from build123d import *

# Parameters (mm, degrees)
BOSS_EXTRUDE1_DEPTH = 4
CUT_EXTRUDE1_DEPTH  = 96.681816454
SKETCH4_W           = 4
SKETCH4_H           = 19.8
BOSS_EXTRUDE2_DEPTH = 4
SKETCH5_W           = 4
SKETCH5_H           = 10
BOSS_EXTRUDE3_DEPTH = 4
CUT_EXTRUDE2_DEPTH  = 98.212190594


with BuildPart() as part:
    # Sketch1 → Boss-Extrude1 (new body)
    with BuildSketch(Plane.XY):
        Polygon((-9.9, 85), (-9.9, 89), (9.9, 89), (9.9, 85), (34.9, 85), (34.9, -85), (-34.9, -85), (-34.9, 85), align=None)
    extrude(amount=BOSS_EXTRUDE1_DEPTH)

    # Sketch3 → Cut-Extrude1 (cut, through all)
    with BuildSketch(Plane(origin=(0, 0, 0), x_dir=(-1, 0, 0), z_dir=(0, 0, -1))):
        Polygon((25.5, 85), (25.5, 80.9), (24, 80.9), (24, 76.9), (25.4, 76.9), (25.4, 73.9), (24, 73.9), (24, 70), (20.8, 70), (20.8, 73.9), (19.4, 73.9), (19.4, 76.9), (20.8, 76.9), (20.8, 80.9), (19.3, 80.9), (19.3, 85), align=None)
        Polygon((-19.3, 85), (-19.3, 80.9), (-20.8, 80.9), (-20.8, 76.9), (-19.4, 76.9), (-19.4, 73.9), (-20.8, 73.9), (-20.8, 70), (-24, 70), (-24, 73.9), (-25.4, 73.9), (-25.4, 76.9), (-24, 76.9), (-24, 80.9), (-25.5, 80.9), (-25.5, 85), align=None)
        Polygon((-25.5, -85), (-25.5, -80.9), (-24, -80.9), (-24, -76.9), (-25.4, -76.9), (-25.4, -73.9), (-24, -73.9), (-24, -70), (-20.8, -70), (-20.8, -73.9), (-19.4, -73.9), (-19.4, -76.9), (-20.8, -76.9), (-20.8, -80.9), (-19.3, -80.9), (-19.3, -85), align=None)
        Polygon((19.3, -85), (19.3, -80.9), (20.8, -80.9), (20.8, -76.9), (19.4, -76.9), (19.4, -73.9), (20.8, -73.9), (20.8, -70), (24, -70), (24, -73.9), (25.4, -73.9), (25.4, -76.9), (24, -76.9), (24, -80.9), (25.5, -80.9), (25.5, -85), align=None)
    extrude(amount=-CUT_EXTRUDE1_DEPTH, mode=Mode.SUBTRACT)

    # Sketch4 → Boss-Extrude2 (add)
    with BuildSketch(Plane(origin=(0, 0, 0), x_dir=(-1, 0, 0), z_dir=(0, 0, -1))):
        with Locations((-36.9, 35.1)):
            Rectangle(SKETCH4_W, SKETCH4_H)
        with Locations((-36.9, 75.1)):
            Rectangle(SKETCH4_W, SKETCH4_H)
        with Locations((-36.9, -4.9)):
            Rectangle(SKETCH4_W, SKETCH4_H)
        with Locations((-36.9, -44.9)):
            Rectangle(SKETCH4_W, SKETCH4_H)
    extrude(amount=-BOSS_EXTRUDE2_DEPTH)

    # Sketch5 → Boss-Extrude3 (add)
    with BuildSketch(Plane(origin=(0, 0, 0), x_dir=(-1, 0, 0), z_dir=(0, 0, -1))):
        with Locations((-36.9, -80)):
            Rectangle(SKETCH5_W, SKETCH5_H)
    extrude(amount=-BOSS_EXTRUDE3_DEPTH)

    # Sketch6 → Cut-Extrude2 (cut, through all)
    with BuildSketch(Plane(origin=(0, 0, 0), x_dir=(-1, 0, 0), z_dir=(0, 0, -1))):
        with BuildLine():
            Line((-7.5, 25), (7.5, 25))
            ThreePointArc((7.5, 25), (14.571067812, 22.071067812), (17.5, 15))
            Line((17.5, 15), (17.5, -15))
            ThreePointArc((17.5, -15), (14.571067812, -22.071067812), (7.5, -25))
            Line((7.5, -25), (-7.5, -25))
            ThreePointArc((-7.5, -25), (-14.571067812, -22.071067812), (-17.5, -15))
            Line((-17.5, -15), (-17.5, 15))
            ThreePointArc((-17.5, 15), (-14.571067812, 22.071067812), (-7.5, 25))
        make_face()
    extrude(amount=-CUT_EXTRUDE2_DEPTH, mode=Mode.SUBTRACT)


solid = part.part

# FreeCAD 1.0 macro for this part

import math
import FreeCAD as App
import Part
import Sketcher
from FreeCAD import Vector


def add_polygon(sketch, points):
    """Adds a closed chain of lines whose ends are joined by coincident constraints."""
    first, n = sketch.GeometryCount, len(points)
    for a, b in zip(points, points[1:] + points[:1]):
        sketch.addGeometry(Part.LineSegment(App.Vector(*a, 0), App.Vector(*b, 0)), False)
    for i in range(n):
        sketch.addConstraint(Sketcher.Constraint("Coincident", first + i, 2, first + (i + 1) % n, 1))

doc = App.newDocument("Part")
body = doc.addObject("PartDesign::Body", "Body")

sketch1 = body.newObject("Sketcher::SketchObject", "Sketch")
sketch1.AttachmentSupport = (doc.getObject("XY_Plane"), [""])
sketch1.MapMode = "FlatFace"
add_polygon(sketch1, [(-9.9, 89), (-9.9, 85), (-34.9, 85), (-34.9, -85), (34.9, -85), (34.9, 85), (9.9, 85), (9.9, 89)])
sketch1.addConstraint(Sketcher.Constraint("Vertical", 0))
sketch1.addConstraint(Sketcher.Constraint("Horizontal", 1))
sketch1.addConstraint(Sketcher.Constraint("Vertical", 2))
sketch1.addConstraint(Sketcher.Constraint("Horizontal", 3))
sketch1.addConstraint(Sketcher.Constraint("Vertical", 4))
sketch1.addConstraint(Sketcher.Constraint("Horizontal", 5))
sketch1.addConstraint(Sketcher.Constraint("Vertical", 6))
sketch1.addConstraint(Sketcher.Constraint("Horizontal", 7))
sketch1.addConstraint(Sketcher.Constraint("Symmetric", 1, 2, 3, 2, -1, 1))
sketch1.addConstraint(Sketcher.Constraint("Symmetric", 0, 2, 5, 2, -2))
sketch1.addConstraint(Sketcher.Constraint("DistanceX", 1, 2, 1, 1, 25.0))
sketch1.addConstraint(Sketcher.Constraint("DistanceY", 0, 2, 0, 1, 4.0))
sketch1.addConstraint(Sketcher.Constraint("DistanceY", 2, 2, 2, 1, 170.0))
sketch1.addConstraint(Sketcher.Constraint("DistanceX", 3, 1, 3, 2, 69.8))
pad1 = body.newObject("PartDesign::Pad", "Pad")
pad1.Profile = sketch1
pad1.Length = 4

sketch2 = body.newObject("Sketcher::SketchObject", "Sketch001")
sketch2.AttachmentSupport = (doc.getObject("XY_Plane"), [""])
sketch2.MapMode = "FlatFace"
add_polygon(sketch2, [(-25.5, 80.9), (-25.5, 85), (-19.3, 85), (-19.3, 80.9), (-20.8, 80.9), (-20.8, 76.9), (-19.4, 76.9), (-19.4, 73.9), (-20.8, 73.9), (-20.8, 70), (-24, 70), (-24, 73.9), (-25.4, 73.9), (-25.4, 76.9), (-24, 76.9), (-24, 80.9)])
add_polygon(sketch2, [(19.3, 80.9), (19.3, 85), (25.5, 85), (25.5, 80.9), (24, 80.9), (24, 76.9), (25.4, 76.9), (25.4, 73.9), (24, 73.9), (24, 70), (20.8, 70), (20.8, 73.9), (19.4, 73.9), (19.4, 76.9), (20.8, 76.9), (20.8, 80.9)])
add_polygon(sketch2, [(25.5, -80.9), (25.5, -85), (19.3, -85), (19.3, -80.9), (20.8, -80.9), (20.8, -76.9), (19.4, -76.9), (19.4, -73.9), (20.8, -73.9), (20.8, -70), (24, -70), (24, -73.9), (25.4, -73.9), (25.4, -76.9), (24, -76.9), (24, -80.9)])
add_polygon(sketch2, [(-19.3, -80.9), (-19.3, -85), (-25.5, -85), (-25.5, -80.9), (-24, -80.9), (-24, -76.9), (-25.4, -76.9), (-25.4, -73.9), (-24, -73.9), (-24, -70), (-20.8, -70), (-20.8, -73.9), (-19.4, -73.9), (-19.4, -76.9), (-20.8, -76.9), (-20.8, -80.9)])
sketch2.addConstraint(Sketcher.Constraint("Vertical", 0))
sketch2.addConstraint(Sketcher.Constraint("Horizontal", 1))
sketch2.addConstraint(Sketcher.Constraint("Vertical", 2))
sketch2.addConstraint(Sketcher.Constraint("Horizontal", 3))
sketch2.addConstraint(Sketcher.Constraint("Vertical", 4))
sketch2.addConstraint(Sketcher.Constraint("Horizontal", 5))
sketch2.addConstraint(Sketcher.Constraint("Vertical", 6))
sketch2.addConstraint(Sketcher.Constraint("Horizontal", 7))
sketch2.addConstraint(Sketcher.Constraint("Vertical", 8))
sketch2.addConstraint(Sketcher.Constraint("Horizontal", 9))
sketch2.addConstraint(Sketcher.Constraint("Vertical", 10))
sketch2.addConstraint(Sketcher.Constraint("Horizontal", 11))
sketch2.addConstraint(Sketcher.Constraint("Vertical", 12))
sketch2.addConstraint(Sketcher.Constraint("Horizontal", 13))
sketch2.addConstraint(Sketcher.Constraint("Vertical", 14))
sketch2.addConstraint(Sketcher.Constraint("Horizontal", 15))
sketch2.addConstraint(Sketcher.Constraint("Vertical", 16))
sketch2.addConstraint(Sketcher.Constraint("Horizontal", 17))
sketch2.addConstraint(Sketcher.Constraint("Vertical", 18))
sketch2.addConstraint(Sketcher.Constraint("Horizontal", 19))
sketch2.addConstraint(Sketcher.Constraint("Vertical", 20))
sketch2.addConstraint(Sketcher.Constraint("Horizontal", 21))
sketch2.addConstraint(Sketcher.Constraint("Vertical", 22))
sketch2.addConstraint(Sketcher.Constraint("Horizontal", 23))
sketch2.addConstraint(Sketcher.Constraint("Vertical", 24))
sketch2.addConstraint(Sketcher.Constraint("Horizontal", 25))
sketch2.addConstraint(Sketcher.Constraint("Vertical", 26))
sketch2.addConstraint(Sketcher.Constraint("Horizontal", 27))
sketch2.addConstraint(Sketcher.Constraint("Vertical", 28))
sketch2.addConstraint(Sketcher.Constraint("Horizontal", 29))
sketch2.addConstraint(Sketcher.Constraint("Vertical", 30))
sketch2.addConstraint(Sketcher.Constraint("Horizontal", 31))
sketch2.addConstraint(Sketcher.Constraint("Vertical", 32))
sketch2.addConstraint(Sketcher.Constraint("Horizontal", 33))
sketch2.addConstraint(Sketcher.Constraint("Vertical", 34))
sketch2.addConstraint(Sketcher.Constraint("Horizontal", 35))
sketch2.addConstraint(Sketcher.Constraint("Vertical", 36))
sketch2.addConstraint(Sketcher.Constraint("Horizontal", 37))
sketch2.addConstraint(Sketcher.Constraint("Vertical", 38))
sketch2.addConstraint(Sketcher.Constraint("Horizontal", 39))
sketch2.addConstraint(Sketcher.Constraint("Vertical", 40))
sketch2.addConstraint(Sketcher.Constraint("Horizontal", 41))
sketch2.addConstraint(Sketcher.Constraint("Vertical", 42))
sketch2.addConstraint(Sketcher.Constraint("Horizontal", 43))
sketch2.addConstraint(Sketcher.Constraint("Vertical", 44))
sketch2.addConstraint(Sketcher.Constraint("Horizontal", 45))
sketch2.addConstraint(Sketcher.Constraint("Vertical", 46))
sketch2.addConstraint(Sketcher.Constraint("Horizontal", 47))
sketch2.addConstraint(Sketcher.Constraint("Vertical", 48))
sketch2.addConstraint(Sketcher.Constraint("Horizontal", 49))
sketch2.addConstraint(Sketcher.Constraint("Vertical", 50))
sketch2.addConstraint(Sketcher.Constraint("Horizontal", 51))
sketch2.addConstraint(Sketcher.Constraint("Vertical", 52))
sketch2.addConstraint(Sketcher.Constraint("Horizontal", 53))
sketch2.addConstraint(Sketcher.Constraint("Vertical", 54))
sketch2.addConstraint(Sketcher.Constraint("Horizontal", 55))
sketch2.addConstraint(Sketcher.Constraint("Vertical", 56))
sketch2.addConstraint(Sketcher.Constraint("Horizontal", 57))
sketch2.addConstraint(Sketcher.Constraint("Vertical", 58))
sketch2.addConstraint(Sketcher.Constraint("Horizontal", 59))
sketch2.addConstraint(Sketcher.Constraint("Vertical", 60))
sketch2.addConstraint(Sketcher.Constraint("Horizontal", 61))
sketch2.addConstraint(Sketcher.Constraint("Vertical", 62))
sketch2.addConstraint(Sketcher.Constraint("Horizontal", 63))
sketch2.addConstraint(Sketcher.Constraint("Symmetric", 0, 2, 32, 2, -1, 1))
sketch2.addConstraint(Sketcher.Constraint("Symmetric", 2, 2, 34, 2, -1, 1))
sketch2.addConstraint(Sketcher.Constraint("Symmetric", 4, 2, 36, 2, -1, 1))
sketch2.addConstraint(Sketcher.Constraint("Symmetric", 6, 2, 38, 2, -1, 1))
sketch2.addConstraint(Sketcher.Constraint("Symmetric", 8, 2, 40, 2, -1, 1))
sketch2.addConstraint(Sketcher.Constraint("Symmetric", 10, 2, 42, 2, -1, 1))
sketch2.addConstraint(Sketcher.Constraint("Symmetric", 12, 2, 44, 2, -1, 1))
sketch2.addConstraint(Sketcher.Constraint("Symmetric", 14, 2, 46, 2, -1, 1))
sketch2.addConstraint(Sketcher.Constraint("Symmetric", 16, 2, 48, 2, -1, 1))
sketch2.addConstraint(Sketcher.Constraint("Symmetric", 18, 2, 50, 2, -1, 1))
sketch2.addConstraint(Sketcher.Constraint("Symmetric", 20, 2, 52, 2, -1, 1))
sketch2.addConstraint(Sketcher.Constraint("Symmetric", 22, 2, 54, 2, -1, 1))
sketch2.addConstraint(Sketcher.Constraint("Symmetric", 24, 2, 56, 2, -1, 1))
sketch2.addConstraint(Sketcher.Constraint("Symmetric", 26, 2, 58, 2, -1, 1))
sketch2.addConstraint(Sketcher.Constraint("Symmetric", 28, 2, 60, 2, -1, 1))
sketch2.addConstraint(Sketcher.Constraint("Symmetric", 30, 2, 62, 2, -1, 1))
sketch2.addConstraint(Sketcher.Constraint("Symmetric", 1, 2, 16, 2, -2))
sketch2.addConstraint(Sketcher.Constraint("Symmetric", 15, 2, 18, 2, -2))
sketch2.addConstraint(Sketcher.Constraint("Symmetric", 13, 2, 20, 2, -2))
sketch2.addConstraint(Sketcher.Constraint("Symmetric", 11, 2, 22, 2, -2))
sketch2.addConstraint(Sketcher.Constraint("Symmetric", 9, 2, 24, 2, -2))
sketch2.addConstraint(Sketcher.Constraint("Symmetric", 7, 2, 26, 2, -2))
sketch2.addConstraint(Sketcher.Constraint("Symmetric", 5, 2, 28, 2, -2))
sketch2.addConstraint(Sketcher.Constraint("Symmetric", 3, 2, 30, 2, -2))
sketch2.addConstraint(Sketcher.Constraint("Horizontal", 7, 2, 10, 2))
sketch2.addConstraint(Sketcher.Constraint("Horizontal", 5, 2, 12, 2))
sketch2.addConstraint(Sketcher.Constraint("Horizontal", 3, 2, 14, 2))
sketch2.addConstraint(Sketcher.Constraint("Vertical", 4, 2, 7, 2))
sketch2.addConstraint(Sketcher.Constraint("Vertical", 10, 2, 13, 2))
sketch2.addConstraint(Sketcher.Constraint("Equal", 7, 11))
sketch2.addConstraint(Sketcher.Constraint("Equal", 3, 15))
sketch2.addConstraint(Sketcher.Constraint("DistanceY", 4, 2, 4, 1, 4.0))
sketch2.addConstraint(Sketcher.Constraint("DistanceY", 6, 2, 6, 1, 3.0))
sketch2.addConstraint(Sketcher.Constraint("DistanceX", 1, 1, 1, 2, 6.2))
sketch2.addConstraint(Sketcher.Constraint("DistanceX", 3, 2, 3, 1, 1.5))
sketch2.addConstraint(Sketcher.Constraint("DistanceX", 5, 1, 5, 2, 1.4))
sketch2.addConstraint(Sketcher.Constraint("DistanceY", 0, 1, 0, 2, 4.1))
sketch2.addConstraint(Sketcher.Constraint("DistanceY", 8, 2, 8, 1, 3.9))
sketch2.addConstraint(Sketcher.Constraint("DistanceY", -1, 1, 0, 2, 85.0))
sketch2.addConstraint(Sketcher.Constraint("DistanceX", 9, 2, -1, 1, 24.0))
pocket1 = body.newObject("PartDesign::Pocket", "Pocket")
pocket1.Profile = sketch2
pocket1.Type = "ThroughAll"
pocket1.Reversed = True

sketch3 = body.newObject("Sketcher::SketchObject", "Sketch002")
sketch3.AttachmentSupport = (doc.getObject("XY_Plane"), [""])
sketch3.MapMode = "FlatFace"
add_polygon(sketch3, [(38.9, 45), (38.9, 25.2), (34.9, 25.2), (34.9, 45)])
add_polygon(sketch3, [(38.9, 85), (38.9, 65.2), (34.9, 65.2), (34.9, 85)])
add_polygon(sketch3, [(38.9, 5), (38.9, -14.8), (34.9, -14.8), (34.9, 5)])
add_polygon(sketch3, [(38.9, -35), (38.9, -54.8), (34.9, -54.8), (34.9, -35)])
sketch3.addConstraint(Sketcher.Constraint("Vertical", 0))
sketch3.addConstraint(Sketcher.Constraint("Horizontal", 1))
sketch3.addConstraint(Sketcher.Constraint("Vertical", 2))
sketch3.addConstraint(Sketcher.Constraint("Horizontal", 3))
sketch3.addConstraint(Sketcher.Constraint("Vertical", 4))
sketch3.addConstraint(Sketcher.Constraint("Horizontal", 5))
sketch3.addConstraint(Sketcher.Constraint("Vertical", 6))
sketch3.addConstraint(Sketcher.Constraint("Horizontal", 7))
sketch3.addConstraint(Sketcher.Constraint("Vertical", 8))
sketch3.addConstraint(Sketcher.Constraint("Horizontal", 9))
sketch3.addConstraint(Sketcher.Constraint("Vertical", 10))
sketch3.addConstraint(Sketcher.Constraint("Horizontal", 11))
sketch3.addConstraint(Sketcher.Constraint("Vertical", 12))
sketch3.addConstraint(Sketcher.Constraint("Horizontal", 13))
sketch3.addConstraint(Sketcher.Constraint("Vertical", 14))
sketch3.addConstraint(Sketcher.Constraint("Horizontal", 15))
sketch3.addConstraint(Sketcher.Constraint("Vertical", 3, 2, 4, 2))
sketch3.addConstraint(Sketcher.Constraint("Vertical", 2, 2, 5, 2))
sketch3.addConstraint(Sketcher.Constraint("Vertical", 7, 2, 8, 2))
sketch3.addConstraint(Sketcher.Constraint("Vertical", 6, 2, 9, 2))
sketch3.addConstraint(Sketcher.Constraint("Vertical", 11, 2, 12, 2))
sketch3.addConstraint(Sketcher.Constraint("Vertical", 10, 2, 13, 2))
sketch3.addConstraint(Sketcher.Constraint("Equal", 2, 4))
sketch3.addConstraint(Sketcher.Constraint("Equal", 6, 8))
sketch3.addConstraint(Sketcher.Constraint("Equal", 10, 12))
sketch3.addConstraint(Sketcher.Constraint("DistanceX", 1, 2, 1, 1, 4.0))
sketch3.addConstraint(Sketcher.Constraint("DistanceY", 0, 2, 0, 1, 19.8))
sketch3.addConstraint(Sketcher.Constraint("DistanceY", -1, 1, 2, 2, 45.0))
sketch3.addConstraint(Sketcher.Constraint("DistanceY", -1, 1, 6, 2, 85.0))
sketch3.addConstraint(Sketcher.Constraint("DistanceY", -1, 1, 10, 2, 5.0))
sketch3.addConstraint(Sketcher.Constraint("DistanceY", 14, 2, -1, 1, 35.0))
sketch3.addConstraint(Sketcher.Constraint("DistanceX", -1, 1, 0, 2, 38.9))
pad2 = body.newObject("PartDesign::Pad", "Pad001")
pad2.Profile = sketch3
pad2.Length = 4

sketch4 = body.newObject("Sketcher::SketchObject", "Sketch003")
sketch4.AttachmentSupport = (doc.getObject("XY_Plane"), [""])
sketch4.MapMode = "FlatFace"
add_polygon(sketch4, [(38.9, -75), (38.9, -85), (34.9, -85), (34.9, -75)])
sketch4.addConstraint(Sketcher.Constraint("Vertical", 0))
sketch4.addConstraint(Sketcher.Constraint("Horizontal", 1))
sketch4.addConstraint(Sketcher.Constraint("Vertical", 2))
sketch4.addConstraint(Sketcher.Constraint("Horizontal", 3))
sketch4.addConstraint(Sketcher.Constraint("DistanceX", 1, 2, 1, 1, 4.0))
sketch4.addConstraint(Sketcher.Constraint("DistanceY", 0, 2, 0, 1, 10.0))
sketch4.addConstraint(Sketcher.Constraint("DistanceY", 0, 2, -1, 1, 85.0))
sketch4.addConstraint(Sketcher.Constraint("DistanceX", -1, 1, 0, 2, 38.9))
pad3 = body.newObject("PartDesign::Pad", "Pad002")
pad3.Profile = sketch4
pad3.Length = 4

sketch5 = body.newObject("Sketcher::SketchObject", "Sketch004")
sketch5.AttachmentSupport = (doc.getObject("XY_Plane"), [""])
sketch5.MapMode = "FlatFace"
sketch5.addGeometry(Part.LineSegment(Vector(-8, 25, 0), Vector(8, 25, 0)), False)
sketch5.addGeometry(Part.ArcOfCircle(Part.Circle(Vector(8, 15, 0), Vector(0, 0, 1), 10), math.radians(0), math.radians(90)), False)
sketch5.addGeometry(Part.LineSegment(Vector(18, 15, 0), Vector(18, -15, 0)), False)
sketch5.addGeometry(Part.ArcOfCircle(Part.Circle(Vector(8, -15, 0), Vector(0, 0, 1), 10), math.radians(-90), math.radians(0)), False)
sketch5.addGeometry(Part.LineSegment(Vector(8, -25, 0), Vector(-8, -25, 0)), False)
sketch5.addGeometry(Part.ArcOfCircle(Part.Circle(Vector(-8, -15, 0), Vector(0, 0, 1), 10), math.radians(180), math.radians(270)), False)
sketch5.addGeometry(Part.LineSegment(Vector(-18, -15, 0), Vector(-18, 15, 0)), False)
sketch5.addGeometry(Part.ArcOfCircle(Part.Circle(Vector(-8, 15, 0), Vector(0, 0, 1), 10), math.radians(90), math.radians(180)), False)
sketch5.addConstraint(Sketcher.Constraint("Tangent", 0, 2, 1, 2))
sketch5.addConstraint(Sketcher.Constraint("Tangent", 1, 1, 2, 1))
sketch5.addConstraint(Sketcher.Constraint("Tangent", 2, 2, 3, 2))
sketch5.addConstraint(Sketcher.Constraint("Tangent", 3, 1, 4, 1))
sketch5.addConstraint(Sketcher.Constraint("Tangent", 4, 2, 5, 2))
sketch5.addConstraint(Sketcher.Constraint("Tangent", 5, 1, 6, 1))
sketch5.addConstraint(Sketcher.Constraint("Tangent", 6, 2, 7, 2))
sketch5.addConstraint(Sketcher.Constraint("Tangent", 7, 1, 0, 1))
sketch5.addConstraint(Sketcher.Constraint("Horizontal", 0))
sketch5.addConstraint(Sketcher.Constraint("Vertical", 2))
sketch5.addConstraint(Sketcher.Constraint("Horizontal", 4))
sketch5.addConstraint(Sketcher.Constraint("Vertical", 6))
sketch5.addConstraint(Sketcher.Constraint("Equal", 1, 3))
sketch5.addConstraint(Sketcher.Constraint("Equal", 3, 5))
sketch5.addConstraint(Sketcher.Constraint("Equal", 5, 7))
sketch5.addConstraint(Sketcher.Constraint("Symmetric", 1, 3, 5, 3, -1, 1))
sketch5.addConstraint(Sketcher.Constraint("Radius", 1, 10.0))
sketch5.addConstraint(Sketcher.Constraint("DistanceX", 0, 1, 0, 2, 15.0))
sketch5.addConstraint(Sketcher.Constraint("DistanceY", 2, 2, 2, 1, 30.0))
pocket2 = body.newObject("PartDesign::Pocket", "Pocket001")
pocket2.Profile = sketch5
pocket2.Type = "ThroughAll"
pocket2.Reversed = True

doc.recompute()
